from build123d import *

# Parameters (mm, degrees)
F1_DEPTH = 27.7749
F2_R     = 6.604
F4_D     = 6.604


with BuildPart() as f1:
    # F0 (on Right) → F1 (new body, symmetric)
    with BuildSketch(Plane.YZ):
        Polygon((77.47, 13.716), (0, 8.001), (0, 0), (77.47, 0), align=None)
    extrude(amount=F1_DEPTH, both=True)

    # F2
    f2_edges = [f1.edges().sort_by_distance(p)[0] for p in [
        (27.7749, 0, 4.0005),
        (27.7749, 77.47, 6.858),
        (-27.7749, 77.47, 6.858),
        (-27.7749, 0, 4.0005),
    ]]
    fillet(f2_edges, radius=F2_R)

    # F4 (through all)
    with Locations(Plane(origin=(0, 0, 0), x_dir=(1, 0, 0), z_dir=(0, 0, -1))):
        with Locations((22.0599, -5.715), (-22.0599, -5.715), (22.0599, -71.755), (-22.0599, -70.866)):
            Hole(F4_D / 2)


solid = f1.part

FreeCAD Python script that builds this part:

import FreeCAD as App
import Part
import Sketcher
Q = App.Units.Quantity


def edges_at(feature, points):
    """Names of the edges that pass closest to the given points."""
    edges = feature.Shape.Edges
    near = lambda p: min(range(len(edges)), key=lambda i: edges[i].distToShape(Part.Vertex(*p))[0])
    return sorted({f"Edge{near(p) + 1}" for p in points})


def add_polygon(sketch, points):
    """Adds a closed chain of lines whose ends are joined by coincident constraints."""
    first, n = sketch.GeometryCount, len(points)
    for a, b in zip(points, points[1:] + points[:1]):
        sketch.addGeometry(Part.LineSegment(App.Vector(*a, 0), App.Vector(*b, 0)), False)
    for i in range(n):
        sketch.addConstraint(Sketcher.Constraint("Coincident", first + i, 2, first + (i + 1) % n, 1))

doc = App.newDocument("Part")
body = doc.addObject("PartDesign::Body", "Body")

# Sketch on YZ plane
sketch1 = body.newObject("Sketcher::SketchObject", "Sketch")
sketch1.AttachmentSupport = (doc.getObject("YZ_Plane"), [""])
sketch1.MapMode = "FlatFace"
add_polygon(sketch1, [(77, 14), (0, 8), (0, 0), (77, 0)])  # lines 0-3
sketch1.addConstraint(Sketcher.Constraint("Vertical", 1))
sketch1.addConstraint(Sketcher.Constraint("Horizontal", 2))
sketch1.addConstraint(Sketcher.Constraint("Vertical", 3))
sketch1.addConstraint(Sketcher.Constraint("Coincident", 1, 2, -1, 1))
sketch1.addConstraint(Sketcher.Constraint("DistanceX", 2, 1, 2, 2, Q("3.05 in")))
sketch1.addConstraint(Sketcher.Constraint("DistanceY", 3, 1, 3, 2, Q("0.54 in")))
sketch1.addConstraint(Sketcher.Constraint("DistanceY", 1, 2, 1, 1, Q("0.315 in")))
pad1 = body.newObject("PartDesign::Pad", "Pad")
pad1.Profile = sketch1
pad1.Length = Q("2.187 in")
pad1.Midplane = True
doc.recompute()

fillet = body.newObject("PartDesign::Fillet", "Fillet")
fillet.Base = (pad1, edges_at(pad1, [
    (27.775, 0, 4),
    (27.775, 77.47, 6.858),
    (-27.775, 77.47, 6.858),
    (-27.775, 0, 4),
]))
fillet.Radius = Q("0.26 in")

# Sketch on XY plane
sketch2 = body.newObject("Sketcher::SketchObject", "Sketch001")
sketch2.AttachmentSupport = (doc.getObject("XY_Plane"), [""])
sketch2.MapMode = "FlatFace"
sketch2.addGeometry(Part.Circle(App.Vector(22.1, 5.7, 0), App.Vector(0, 0, 1), 3.3), False)
sketch2.addGeometry(Part.Circle(App.Vector(-22.1, 5.7, 0), App.Vector(0, 0, 1), 3.3), False)
sketch2.addGeometry(Part.Circle(App.Vector(22.1, 71.8, 0), App.Vector(0, 0, 1), 3.3), False)
sketch2.addGeometry(Part.Circle(App.Vector(-22.1, 70.9, 0), App.Vector(0, 0, 1), 3.3), False)
sketch2.addConstraint(Sketcher.Constraint("Equal", 0, 1))
sketch2.addConstraint(Sketcher.Constraint("Equal", 1, 2))
sketch2.addConstraint(Sketcher.Constraint("Equal", 2, 3))
sketch2.addConstraint(Sketcher.Constraint("Symmetric", 0, 3, 1, 3, -2))
sketch2.addConstraint(Sketcher.Constraint("Vertical", 0, 3, 2, 3))
sketch2.addConstraint(Sketcher.Constraint("Vertical", 1, 3, 3, 3))
sketch2.addConstraint(Sketcher.Constraint("Diameter", 0, Q("0.26 in")))
sketch2.addConstraint(Sketcher.Constraint("DistanceY", 0, 3, 2, 3, Q("2.6 in")))
sketch2.addConstraint(Sketcher.Constraint("DistanceY", -1, 1, 3, 3, Q("2.79 in")))
sketch2.addConstraint(Sketcher.Constraint("DistanceY", -1, 1, 0, 3, Q("0.225 in")))
sketch2.addConstraint(Sketcher.Constraint("DistanceX", 1, 3, 0, 3, Q("1.737 in")))
doc.recompute()
hole = body.newObject("PartDesign::Hole", "Hole")
hole.Profile = sketch2
hole.ThreadType = "None"
hole.Diameter = Q("0.26 in")
hole.DepthType = "ThroughAll"
hole.Reversed = True

doc.recompute()
